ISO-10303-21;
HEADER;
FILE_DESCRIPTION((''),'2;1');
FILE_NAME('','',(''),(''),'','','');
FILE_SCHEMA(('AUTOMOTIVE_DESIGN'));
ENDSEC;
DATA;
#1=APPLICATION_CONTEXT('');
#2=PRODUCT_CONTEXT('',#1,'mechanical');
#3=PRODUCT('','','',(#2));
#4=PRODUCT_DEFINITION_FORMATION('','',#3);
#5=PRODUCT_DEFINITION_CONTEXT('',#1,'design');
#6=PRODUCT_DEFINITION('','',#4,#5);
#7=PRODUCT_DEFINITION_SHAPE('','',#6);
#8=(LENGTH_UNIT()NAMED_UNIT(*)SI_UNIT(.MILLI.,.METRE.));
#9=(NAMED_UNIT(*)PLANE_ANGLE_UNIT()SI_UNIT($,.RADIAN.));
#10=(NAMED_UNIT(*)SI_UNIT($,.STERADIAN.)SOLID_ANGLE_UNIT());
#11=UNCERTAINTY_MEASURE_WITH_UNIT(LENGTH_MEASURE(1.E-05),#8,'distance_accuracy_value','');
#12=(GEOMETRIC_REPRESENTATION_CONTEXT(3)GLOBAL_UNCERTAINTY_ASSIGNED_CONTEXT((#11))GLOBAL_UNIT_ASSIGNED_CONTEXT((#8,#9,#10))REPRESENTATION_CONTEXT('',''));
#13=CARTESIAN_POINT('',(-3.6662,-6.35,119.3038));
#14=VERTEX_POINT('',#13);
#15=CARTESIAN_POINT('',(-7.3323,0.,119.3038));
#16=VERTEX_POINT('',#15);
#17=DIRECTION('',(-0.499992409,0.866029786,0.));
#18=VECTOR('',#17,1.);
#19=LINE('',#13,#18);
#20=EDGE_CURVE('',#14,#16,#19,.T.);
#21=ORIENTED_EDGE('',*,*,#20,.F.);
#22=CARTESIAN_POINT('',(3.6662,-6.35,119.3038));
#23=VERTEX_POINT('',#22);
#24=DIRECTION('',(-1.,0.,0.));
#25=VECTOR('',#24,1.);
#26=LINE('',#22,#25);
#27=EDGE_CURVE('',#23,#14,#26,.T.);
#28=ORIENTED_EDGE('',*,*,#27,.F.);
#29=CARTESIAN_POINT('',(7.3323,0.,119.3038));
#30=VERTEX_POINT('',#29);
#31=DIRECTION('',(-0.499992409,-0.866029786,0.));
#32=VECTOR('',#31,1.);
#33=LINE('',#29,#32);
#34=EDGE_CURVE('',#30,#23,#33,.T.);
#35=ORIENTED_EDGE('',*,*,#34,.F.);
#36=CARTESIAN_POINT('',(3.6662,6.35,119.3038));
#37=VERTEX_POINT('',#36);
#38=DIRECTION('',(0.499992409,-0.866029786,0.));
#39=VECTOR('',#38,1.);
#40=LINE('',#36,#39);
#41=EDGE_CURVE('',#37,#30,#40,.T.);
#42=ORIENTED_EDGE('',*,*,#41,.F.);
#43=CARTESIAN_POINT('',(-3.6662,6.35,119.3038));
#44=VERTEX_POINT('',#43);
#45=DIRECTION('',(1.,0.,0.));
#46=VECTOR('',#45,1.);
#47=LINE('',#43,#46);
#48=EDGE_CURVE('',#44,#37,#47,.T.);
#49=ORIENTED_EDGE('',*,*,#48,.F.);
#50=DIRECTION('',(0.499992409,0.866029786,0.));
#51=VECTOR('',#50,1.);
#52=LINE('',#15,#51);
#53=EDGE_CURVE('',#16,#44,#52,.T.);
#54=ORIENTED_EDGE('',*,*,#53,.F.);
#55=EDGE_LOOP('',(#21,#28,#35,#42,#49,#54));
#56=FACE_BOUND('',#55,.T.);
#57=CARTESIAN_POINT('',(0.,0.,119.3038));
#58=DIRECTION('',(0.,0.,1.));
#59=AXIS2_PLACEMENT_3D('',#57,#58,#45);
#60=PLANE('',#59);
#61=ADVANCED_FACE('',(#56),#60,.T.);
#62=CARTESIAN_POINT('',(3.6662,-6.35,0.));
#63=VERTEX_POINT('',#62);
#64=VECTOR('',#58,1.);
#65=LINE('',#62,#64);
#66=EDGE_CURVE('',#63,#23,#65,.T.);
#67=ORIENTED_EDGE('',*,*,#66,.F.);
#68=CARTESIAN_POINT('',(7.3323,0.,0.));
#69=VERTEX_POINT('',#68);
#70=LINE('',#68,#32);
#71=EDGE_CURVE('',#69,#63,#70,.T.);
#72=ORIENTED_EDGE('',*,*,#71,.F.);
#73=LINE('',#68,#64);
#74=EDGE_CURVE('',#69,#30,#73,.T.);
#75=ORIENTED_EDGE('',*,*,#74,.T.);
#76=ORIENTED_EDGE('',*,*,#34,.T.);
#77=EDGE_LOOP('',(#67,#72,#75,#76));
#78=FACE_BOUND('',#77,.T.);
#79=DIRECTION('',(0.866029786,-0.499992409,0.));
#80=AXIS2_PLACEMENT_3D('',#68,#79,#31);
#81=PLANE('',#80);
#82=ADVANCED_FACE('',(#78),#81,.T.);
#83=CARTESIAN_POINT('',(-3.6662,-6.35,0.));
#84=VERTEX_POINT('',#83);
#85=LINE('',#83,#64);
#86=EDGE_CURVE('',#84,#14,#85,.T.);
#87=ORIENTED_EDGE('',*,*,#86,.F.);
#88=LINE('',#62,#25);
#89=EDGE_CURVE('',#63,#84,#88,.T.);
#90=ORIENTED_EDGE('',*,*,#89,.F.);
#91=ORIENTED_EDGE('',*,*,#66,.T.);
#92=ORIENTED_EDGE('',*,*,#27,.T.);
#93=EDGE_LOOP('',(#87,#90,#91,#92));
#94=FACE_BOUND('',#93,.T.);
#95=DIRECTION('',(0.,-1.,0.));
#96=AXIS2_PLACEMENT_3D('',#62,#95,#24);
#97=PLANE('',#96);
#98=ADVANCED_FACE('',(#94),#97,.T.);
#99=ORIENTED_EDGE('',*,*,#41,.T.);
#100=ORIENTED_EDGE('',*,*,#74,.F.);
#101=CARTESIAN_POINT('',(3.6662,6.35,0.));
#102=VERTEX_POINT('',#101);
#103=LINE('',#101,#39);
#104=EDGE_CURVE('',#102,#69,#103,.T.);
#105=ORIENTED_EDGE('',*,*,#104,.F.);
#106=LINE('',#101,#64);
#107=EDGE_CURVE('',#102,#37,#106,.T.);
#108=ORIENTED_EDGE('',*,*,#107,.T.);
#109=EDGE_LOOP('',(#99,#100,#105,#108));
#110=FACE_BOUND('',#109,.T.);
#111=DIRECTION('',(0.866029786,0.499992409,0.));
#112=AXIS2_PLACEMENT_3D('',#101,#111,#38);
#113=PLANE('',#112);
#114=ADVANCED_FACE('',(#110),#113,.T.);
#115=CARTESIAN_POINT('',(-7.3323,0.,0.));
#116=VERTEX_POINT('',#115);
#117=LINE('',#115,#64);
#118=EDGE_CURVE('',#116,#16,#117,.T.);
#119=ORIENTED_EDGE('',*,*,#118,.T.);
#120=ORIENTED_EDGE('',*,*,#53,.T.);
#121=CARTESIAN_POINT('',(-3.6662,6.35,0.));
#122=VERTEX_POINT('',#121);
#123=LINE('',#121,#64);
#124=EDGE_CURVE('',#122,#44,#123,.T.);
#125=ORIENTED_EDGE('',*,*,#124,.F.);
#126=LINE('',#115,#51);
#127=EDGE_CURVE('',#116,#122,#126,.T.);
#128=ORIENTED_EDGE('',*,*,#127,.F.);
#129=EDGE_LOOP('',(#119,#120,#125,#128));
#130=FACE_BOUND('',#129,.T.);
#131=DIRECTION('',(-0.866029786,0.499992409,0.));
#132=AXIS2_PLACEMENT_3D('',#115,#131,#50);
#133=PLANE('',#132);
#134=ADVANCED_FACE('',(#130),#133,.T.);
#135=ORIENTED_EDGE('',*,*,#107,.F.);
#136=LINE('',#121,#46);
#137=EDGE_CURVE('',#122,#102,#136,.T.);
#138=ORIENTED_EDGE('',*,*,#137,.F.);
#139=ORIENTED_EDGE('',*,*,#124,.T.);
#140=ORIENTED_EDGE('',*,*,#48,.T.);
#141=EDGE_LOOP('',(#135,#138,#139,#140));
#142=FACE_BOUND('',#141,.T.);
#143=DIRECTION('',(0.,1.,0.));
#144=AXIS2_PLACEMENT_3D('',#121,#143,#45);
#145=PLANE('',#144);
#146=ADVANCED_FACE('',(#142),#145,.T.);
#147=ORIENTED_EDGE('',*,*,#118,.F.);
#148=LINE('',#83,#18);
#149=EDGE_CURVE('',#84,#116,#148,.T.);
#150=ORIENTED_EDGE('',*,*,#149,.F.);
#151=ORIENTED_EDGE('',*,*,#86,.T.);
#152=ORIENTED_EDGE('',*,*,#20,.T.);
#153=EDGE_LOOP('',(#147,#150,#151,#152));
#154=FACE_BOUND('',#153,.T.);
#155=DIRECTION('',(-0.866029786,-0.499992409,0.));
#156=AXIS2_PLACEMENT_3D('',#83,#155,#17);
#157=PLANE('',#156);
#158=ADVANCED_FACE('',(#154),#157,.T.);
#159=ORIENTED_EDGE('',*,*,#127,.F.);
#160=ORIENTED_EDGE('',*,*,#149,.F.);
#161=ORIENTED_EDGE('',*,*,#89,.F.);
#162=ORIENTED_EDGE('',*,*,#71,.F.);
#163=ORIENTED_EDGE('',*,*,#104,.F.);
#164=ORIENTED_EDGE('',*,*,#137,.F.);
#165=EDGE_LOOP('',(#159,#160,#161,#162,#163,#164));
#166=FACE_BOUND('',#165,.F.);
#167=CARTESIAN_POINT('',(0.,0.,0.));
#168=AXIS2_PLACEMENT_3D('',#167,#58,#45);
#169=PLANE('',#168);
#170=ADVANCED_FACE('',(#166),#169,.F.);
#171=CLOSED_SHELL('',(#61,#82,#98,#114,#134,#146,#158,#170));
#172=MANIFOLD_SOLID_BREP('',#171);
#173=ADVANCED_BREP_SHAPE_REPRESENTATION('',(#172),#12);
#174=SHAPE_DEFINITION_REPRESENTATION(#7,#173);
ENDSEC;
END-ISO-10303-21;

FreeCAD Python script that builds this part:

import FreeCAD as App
import Part
import Sketcher
from FreeCAD import Vector
Q = App.Units.Quantity


def add_polygon(sketch, points):
    """Adds a closed chain of lines whose ends are joined by coincident constraints."""
    first, n = sketch.GeometryCount, len(points)
    for a, b in zip(points, points[1:] + points[:1]):
        sketch.addGeometry(Part.LineSegment(App.Vector(*a, 0), App.Vector(*b, 0)), False)
    for i in range(n):
        sketch.addConstraint(Sketcher.Constraint("Coincident", first + i, 2, first + (i + 1) % n, 1))

doc = App.newDocument("Part")
body = doc.addObject("PartDesign::Body", "Body")

# Sketch on XY plane
sketch1 = body.newObject("Sketcher::SketchObject", "Sketch")
sketch1.AttachmentSupport = (doc.getObject("XY_Plane"), [""])
sketch1.MapMode = "FlatFace"
add_polygon(sketch1, [(4, -6), (7, 0), (4, 6), (-4, 6), (-7, 0), (-4, -6)])  # lines 0-5
sketch1.addConstraint([
    Sketcher.Constraint("Horizontal", 2),
    Sketcher.Constraint("Horizontal", 5),
    Sketcher.Constraint("Symmetric", 0, 2, 3, 2, -1, 1),
    Sketcher.Constraint("Symmetric", 1, 2, 4, 2, -1, 1),
    Sketcher.Constraint("PointOnObject", 0, 2, -1),
    Sketcher.Constraint("Parallel", 0, 3),
    Sketcher.Constraint("Vertical", 2, 2, 4, 2),
    Sketcher.Constraint("DistanceY", 4, 2, 2, 2, Q("0.5 in")),
    Sketcher.Constraint("Angle", 0, Q("60.0005 deg")),
    Sketcher.Constraint("DistanceX", 2, 2, 0, 2, Q("0.433 in")),
])
pad1 = body.newObject("PartDesign::Pad", "Pad")
pad1.Profile = sketch1
pad1.Length = Q("4.697 in")

doc.recompute()
